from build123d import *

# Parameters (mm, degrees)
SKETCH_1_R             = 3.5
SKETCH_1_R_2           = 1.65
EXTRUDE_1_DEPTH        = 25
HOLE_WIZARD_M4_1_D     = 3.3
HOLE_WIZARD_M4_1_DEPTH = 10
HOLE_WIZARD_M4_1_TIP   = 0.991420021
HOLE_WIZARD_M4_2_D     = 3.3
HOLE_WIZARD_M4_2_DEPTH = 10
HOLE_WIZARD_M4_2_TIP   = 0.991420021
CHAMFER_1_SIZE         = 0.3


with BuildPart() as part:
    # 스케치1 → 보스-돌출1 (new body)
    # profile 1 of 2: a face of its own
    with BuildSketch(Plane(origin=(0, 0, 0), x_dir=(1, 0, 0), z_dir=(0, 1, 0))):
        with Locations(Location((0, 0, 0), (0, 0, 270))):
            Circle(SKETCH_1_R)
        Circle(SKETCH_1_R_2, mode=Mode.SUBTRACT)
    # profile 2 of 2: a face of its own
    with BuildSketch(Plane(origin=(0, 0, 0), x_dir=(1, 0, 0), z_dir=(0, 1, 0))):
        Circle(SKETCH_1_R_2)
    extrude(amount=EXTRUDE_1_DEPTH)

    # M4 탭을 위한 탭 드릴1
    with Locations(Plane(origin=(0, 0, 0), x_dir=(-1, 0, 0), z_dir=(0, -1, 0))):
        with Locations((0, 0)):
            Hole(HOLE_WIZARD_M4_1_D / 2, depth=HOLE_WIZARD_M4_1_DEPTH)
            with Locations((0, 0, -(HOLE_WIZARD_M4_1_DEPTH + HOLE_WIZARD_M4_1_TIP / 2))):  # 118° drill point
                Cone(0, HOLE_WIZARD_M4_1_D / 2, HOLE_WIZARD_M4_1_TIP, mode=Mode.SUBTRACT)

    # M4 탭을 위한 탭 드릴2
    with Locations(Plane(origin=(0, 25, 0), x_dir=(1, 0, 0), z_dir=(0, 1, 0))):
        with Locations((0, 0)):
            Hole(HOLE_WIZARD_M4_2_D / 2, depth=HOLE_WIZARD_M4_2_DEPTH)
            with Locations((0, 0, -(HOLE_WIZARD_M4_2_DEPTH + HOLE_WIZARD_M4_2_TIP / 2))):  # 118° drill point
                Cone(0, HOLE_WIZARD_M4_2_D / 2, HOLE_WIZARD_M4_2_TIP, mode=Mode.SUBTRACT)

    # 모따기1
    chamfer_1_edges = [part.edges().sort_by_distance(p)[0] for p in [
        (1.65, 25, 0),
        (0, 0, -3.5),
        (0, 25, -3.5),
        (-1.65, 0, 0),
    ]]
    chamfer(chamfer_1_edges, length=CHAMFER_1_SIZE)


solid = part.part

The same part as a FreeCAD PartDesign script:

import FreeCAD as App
import Part
import Sketcher

V = App.Vector


def edges_at(feature, points):
    """Names of the edges that pass closest to the given points."""
    edges = feature.Shape.Edges
    near = lambda p: min(range(len(edges)), key=lambda i: edges[i].distToShape(Part.Vertex(*p))[0])
    return sorted({f"Edge{near(p) + 1}" for p in points})

doc = App.newDocument("Part")
params = doc.addObject("Spreadsheet::Sheet", "Params")
for row, (alias, value) in enumerate([
    ("sketch1_diameter", "7 mm"),
    ("pad1_length", "25 mm"),
    ("sketch2_diameter", "3.3 mm"),
    ("hole_diameter", "3.3 mm"),
    ("hole_depth", "10 mm"),
    ("sketch3_diameter", "3.3 mm"),
    ("hole2_diameter", "3.3 mm"),
    ("hole2_depth", "10 mm"),
    ("chamfer_size", "0.3 mm"),
], start=1):
    params.set(f"A{row}", alias)
    params.set(f"B{row}", "=" + value)
    params.setAlias(f"B{row}", alias)

body = doc.addObject("PartDesign::Body", "Body")

sketch1 = body.newObject("Sketcher::SketchObject", "Sketch")
sketch1.AttachmentSupport = (doc.getObject("XZ_Plane"), [""])
sketch1.MapMode = "FlatFace"
sketch1.addGeometry(Part.Circle(V(0, 0, 0), V(0, 0, 1), 3.5), False)
sketch1.addConstraint(Sketcher.Constraint("Coincident", 0, 3, -1, 1))
sketch1.addConstraint(Sketcher.Constraint("Diameter", 0, 7.0))
sketch1.setExpression("Constraints[1]", "Params.sketch1_diameter")
pad1 = body.newObject("PartDesign::Pad", "Pad")
pad1.Profile = sketch1
pad1.setExpression("Length", "Params.pad1_length")
pad1.Reversed = True

sketch2 = body.newObject("Sketcher::SketchObject", "Sketch001")
sketch2.AttachmentSupport = (doc.getObject("XZ_Plane"), [""])
sketch2.MapMode = "FlatFace"
sketch2.addGeometry(Part.Circle(V(0, 0, 0), V(0, 0, 1), 1.65), False)
sketch2.addConstraint(Sketcher.Constraint("Coincident", 0, 3, -1, 1))
sketch2.addConstraint(Sketcher.Constraint("Diameter", 0, 3.3))
sketch2.setExpression("Constraints[1]", "Params.sketch2_diameter")
doc.recompute()
hole = body.newObject("PartDesign::Hole", "Hole")
hole.Profile = sketch2
hole.ThreadType = "None"
hole.setExpression("Diameter", "Params.hole_diameter")
hole.DepthType = "Dimension"
hole.setExpression("Depth", "Params.hole_depth")
hole.DrillPoint = "Angled"
hole.DrillPointAngle = 118

sketch3 = body.newObject("Sketcher::SketchObject", "Sketch002")
sketch3.AttachmentSupport = (doc.getObject("XZ_Plane"), [""])
sketch3.MapMode = "FlatFace"
sketch3.AttachmentOffset = App.Placement(V(0, 0, -25), App.Rotation())
sketch3.addGeometry(Part.Circle(V(0, 0, 0), V(0, 0, 1), 1.65), False)
sketch3.addConstraint(Sketcher.Constraint("Coincident", 0, 3, -1, 1))
sketch3.addConstraint(Sketcher.Constraint("Diameter", 0, 3.3))
sketch3.setExpression("Constraints[1]", "Params.sketch3_diameter")
doc.recompute()
hole2 = body.newObject("PartDesign::Hole", "Hole001")
hole2.Profile = sketch3
hole2.ThreadType = "None"
hole2.setExpression("Diameter", "Params.hole2_diameter")
hole2.DepthType = "Dimension"
hole2.setExpression("Depth", "Params.hole2_depth")
hole2.DrillPoint = "Angled"
hole2.DrillPointAngle = 118
hole2.Reversed = True
doc.recompute()

chamfer = body.newObject("PartDesign::Chamfer", "Chamfer")
chamfer.Base = (hole2, edges_at(hole2, [
    (1.65, 25, 0),
    (0, 0, -3.5),
    (0, 25, -3.5),
    (-1.65, 0, 0),
]))
chamfer.setExpression("Size", "Params.chamfer_size")

doc.recompute()
